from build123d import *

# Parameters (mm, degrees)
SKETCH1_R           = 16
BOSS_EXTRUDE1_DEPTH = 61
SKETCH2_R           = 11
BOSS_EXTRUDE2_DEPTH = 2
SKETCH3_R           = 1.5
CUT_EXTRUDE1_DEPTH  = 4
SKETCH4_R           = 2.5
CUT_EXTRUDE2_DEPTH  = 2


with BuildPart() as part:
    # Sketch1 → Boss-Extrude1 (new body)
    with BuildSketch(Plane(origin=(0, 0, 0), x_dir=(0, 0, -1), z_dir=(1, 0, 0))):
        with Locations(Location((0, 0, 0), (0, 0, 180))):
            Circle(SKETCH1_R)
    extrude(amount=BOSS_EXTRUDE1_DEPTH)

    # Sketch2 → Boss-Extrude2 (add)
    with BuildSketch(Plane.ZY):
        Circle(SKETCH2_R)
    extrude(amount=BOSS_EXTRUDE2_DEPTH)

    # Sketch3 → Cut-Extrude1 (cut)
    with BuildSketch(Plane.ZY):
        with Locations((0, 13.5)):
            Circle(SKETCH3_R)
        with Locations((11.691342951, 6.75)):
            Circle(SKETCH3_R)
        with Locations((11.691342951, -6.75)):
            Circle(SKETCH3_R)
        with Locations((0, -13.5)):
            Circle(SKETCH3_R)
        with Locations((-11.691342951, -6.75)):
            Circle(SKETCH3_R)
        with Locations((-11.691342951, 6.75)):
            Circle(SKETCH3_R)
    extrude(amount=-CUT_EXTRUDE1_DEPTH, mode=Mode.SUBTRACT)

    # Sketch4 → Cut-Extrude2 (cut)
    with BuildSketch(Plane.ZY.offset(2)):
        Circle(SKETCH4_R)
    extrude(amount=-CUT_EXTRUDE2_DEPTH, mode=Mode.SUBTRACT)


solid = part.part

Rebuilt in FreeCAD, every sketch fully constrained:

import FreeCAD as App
import Part
import Sketcher
from FreeCAD import Vector
Q = App.Units.Quantity

doc = App.newDocument("Part")
body = doc.addObject("PartDesign::Body", "Body")

sketch1 = body.newObject("Sketcher::SketchObject", "Sketch")
sketch1.AttachmentSupport = (doc.getObject("YZ_Plane"), [""])
sketch1.MapMode = "FlatFace"
sketch1.addGeometry(Part.Circle(Vector(0, 0, 0), Vector(0, 0, 1), 16), False)
sketch1.addConstraint([
    Sketcher.Constraint("Coincident", 0, 3, -1, 1),
    Sketcher.Constraint("Diameter", 0, Q("32 mm")),
])
pad1 = body.newObject("PartDesign::Pad", "Pad")
pad1.Profile = sketch1
pad1.Length = 61

sketch2 = body.newObject("Sketcher::SketchObject", "Sketch001")
sketch2.AttachmentSupport = (doc.getObject("YZ_Plane"), [""])
sketch2.MapMode = "FlatFace"
sketch2.addGeometry(Part.Circle(Vector(0, 0, 0), Vector(0, 0, 1), 11), False)
sketch2.addConstraint([
    Sketcher.Constraint("Coincident", 0, 3, -1, 1),
    Sketcher.Constraint("Diameter", 0, Q("22 mm")),
])
pad2 = body.newObject("PartDesign::Pad", "Pad001")
pad2.Profile = sketch2
pad2.Length = 2
pad2.Reversed = True

sketch3 = body.newObject("Sketcher::SketchObject", "Sketch002")
sketch3.AttachmentSupport = (doc.getObject("YZ_Plane"), [""])
sketch3.MapMode = "FlatFace"
sketch3.addGeometry([
    Part.Circle(Vector(13.5, 0, 0), Vector(0, 0, 1), 1.5),
    Part.Circle(Vector(6.8, 11.7, 0), Vector(0, 0, 1), 1.5),
    Part.Circle(Vector(-6.8, 11.7, 0), Vector(0, 0, 1), 1.5),
    Part.Circle(Vector(-13.5, 0, 0), Vector(0, 0, 1), 1.5),
    Part.Circle(Vector(-6.8, -11.7, 0), Vector(0, 0, 1), 1.5),
    Part.Circle(Vector(6.8, -11.7, 0), Vector(0, 0, 1), 1.5),
], False)
sketch3.addConstraint([
    Sketcher.Constraint("Equal", 0, 1),
    Sketcher.Constraint("Equal", 1, 2),
    Sketcher.Constraint("Equal", 2, 3),
    Sketcher.Constraint("Equal", 3, 4),
    Sketcher.Constraint("Equal", 4, 5),
    Sketcher.Constraint("Symmetric", 0, 3, 3, 3, -1, 1),
    Sketcher.Constraint("Symmetric", 1, 3, 4, 3, -1, 1),
    Sketcher.Constraint("Symmetric", 2, 3, 5, 3, -1, 1),
    Sketcher.Constraint("Symmetric", 1, 3, 2, 3, -2),
    Sketcher.Constraint("PointOnObject", 0, 3, -1),
    Sketcher.Constraint("Diameter", 0, Q("3 mm")),
    Sketcher.Constraint("DistanceX", 3, 3, 0, 3, Q("27 mm")),
    Sketcher.Constraint("DistanceX", 2, 3, 1, 3, Q("13.5 mm")),
    Sketcher.Constraint("DistanceY", -1, 1, 1, 3, Q("11.691343 mm")),
])
pocket1 = body.newObject("PartDesign::Pocket", "Pocket")
pocket1.Profile = sketch3
pocket1.Length = 4
pocket1.Reversed = True

sketch4 = body.newObject("Sketcher::SketchObject", "Sketch003")
sketch4.AttachmentSupport = (doc.getObject("YZ_Plane"), [""])
sketch4.MapMode = "FlatFace"
sketch4.AttachmentOffset = App.Placement(Vector(0, 0, -2), App.Rotation())
sketch4.addGeometry(Part.Circle(Vector(0, 0, 0), Vector(0, 0, 1), 2.5), False)
sketch4.addConstraint([
    Sketcher.Constraint("Coincident", 0, 3, -1, 1),
    Sketcher.Constraint("Diameter", 0, Q("5 mm")),
])
pocket2 = body.newObject("PartDesign::Pocket", "Pocket001")
pocket2.Profile = sketch4
pocket2.Length = 2
pocket2.Reversed = True

doc.recompute()
